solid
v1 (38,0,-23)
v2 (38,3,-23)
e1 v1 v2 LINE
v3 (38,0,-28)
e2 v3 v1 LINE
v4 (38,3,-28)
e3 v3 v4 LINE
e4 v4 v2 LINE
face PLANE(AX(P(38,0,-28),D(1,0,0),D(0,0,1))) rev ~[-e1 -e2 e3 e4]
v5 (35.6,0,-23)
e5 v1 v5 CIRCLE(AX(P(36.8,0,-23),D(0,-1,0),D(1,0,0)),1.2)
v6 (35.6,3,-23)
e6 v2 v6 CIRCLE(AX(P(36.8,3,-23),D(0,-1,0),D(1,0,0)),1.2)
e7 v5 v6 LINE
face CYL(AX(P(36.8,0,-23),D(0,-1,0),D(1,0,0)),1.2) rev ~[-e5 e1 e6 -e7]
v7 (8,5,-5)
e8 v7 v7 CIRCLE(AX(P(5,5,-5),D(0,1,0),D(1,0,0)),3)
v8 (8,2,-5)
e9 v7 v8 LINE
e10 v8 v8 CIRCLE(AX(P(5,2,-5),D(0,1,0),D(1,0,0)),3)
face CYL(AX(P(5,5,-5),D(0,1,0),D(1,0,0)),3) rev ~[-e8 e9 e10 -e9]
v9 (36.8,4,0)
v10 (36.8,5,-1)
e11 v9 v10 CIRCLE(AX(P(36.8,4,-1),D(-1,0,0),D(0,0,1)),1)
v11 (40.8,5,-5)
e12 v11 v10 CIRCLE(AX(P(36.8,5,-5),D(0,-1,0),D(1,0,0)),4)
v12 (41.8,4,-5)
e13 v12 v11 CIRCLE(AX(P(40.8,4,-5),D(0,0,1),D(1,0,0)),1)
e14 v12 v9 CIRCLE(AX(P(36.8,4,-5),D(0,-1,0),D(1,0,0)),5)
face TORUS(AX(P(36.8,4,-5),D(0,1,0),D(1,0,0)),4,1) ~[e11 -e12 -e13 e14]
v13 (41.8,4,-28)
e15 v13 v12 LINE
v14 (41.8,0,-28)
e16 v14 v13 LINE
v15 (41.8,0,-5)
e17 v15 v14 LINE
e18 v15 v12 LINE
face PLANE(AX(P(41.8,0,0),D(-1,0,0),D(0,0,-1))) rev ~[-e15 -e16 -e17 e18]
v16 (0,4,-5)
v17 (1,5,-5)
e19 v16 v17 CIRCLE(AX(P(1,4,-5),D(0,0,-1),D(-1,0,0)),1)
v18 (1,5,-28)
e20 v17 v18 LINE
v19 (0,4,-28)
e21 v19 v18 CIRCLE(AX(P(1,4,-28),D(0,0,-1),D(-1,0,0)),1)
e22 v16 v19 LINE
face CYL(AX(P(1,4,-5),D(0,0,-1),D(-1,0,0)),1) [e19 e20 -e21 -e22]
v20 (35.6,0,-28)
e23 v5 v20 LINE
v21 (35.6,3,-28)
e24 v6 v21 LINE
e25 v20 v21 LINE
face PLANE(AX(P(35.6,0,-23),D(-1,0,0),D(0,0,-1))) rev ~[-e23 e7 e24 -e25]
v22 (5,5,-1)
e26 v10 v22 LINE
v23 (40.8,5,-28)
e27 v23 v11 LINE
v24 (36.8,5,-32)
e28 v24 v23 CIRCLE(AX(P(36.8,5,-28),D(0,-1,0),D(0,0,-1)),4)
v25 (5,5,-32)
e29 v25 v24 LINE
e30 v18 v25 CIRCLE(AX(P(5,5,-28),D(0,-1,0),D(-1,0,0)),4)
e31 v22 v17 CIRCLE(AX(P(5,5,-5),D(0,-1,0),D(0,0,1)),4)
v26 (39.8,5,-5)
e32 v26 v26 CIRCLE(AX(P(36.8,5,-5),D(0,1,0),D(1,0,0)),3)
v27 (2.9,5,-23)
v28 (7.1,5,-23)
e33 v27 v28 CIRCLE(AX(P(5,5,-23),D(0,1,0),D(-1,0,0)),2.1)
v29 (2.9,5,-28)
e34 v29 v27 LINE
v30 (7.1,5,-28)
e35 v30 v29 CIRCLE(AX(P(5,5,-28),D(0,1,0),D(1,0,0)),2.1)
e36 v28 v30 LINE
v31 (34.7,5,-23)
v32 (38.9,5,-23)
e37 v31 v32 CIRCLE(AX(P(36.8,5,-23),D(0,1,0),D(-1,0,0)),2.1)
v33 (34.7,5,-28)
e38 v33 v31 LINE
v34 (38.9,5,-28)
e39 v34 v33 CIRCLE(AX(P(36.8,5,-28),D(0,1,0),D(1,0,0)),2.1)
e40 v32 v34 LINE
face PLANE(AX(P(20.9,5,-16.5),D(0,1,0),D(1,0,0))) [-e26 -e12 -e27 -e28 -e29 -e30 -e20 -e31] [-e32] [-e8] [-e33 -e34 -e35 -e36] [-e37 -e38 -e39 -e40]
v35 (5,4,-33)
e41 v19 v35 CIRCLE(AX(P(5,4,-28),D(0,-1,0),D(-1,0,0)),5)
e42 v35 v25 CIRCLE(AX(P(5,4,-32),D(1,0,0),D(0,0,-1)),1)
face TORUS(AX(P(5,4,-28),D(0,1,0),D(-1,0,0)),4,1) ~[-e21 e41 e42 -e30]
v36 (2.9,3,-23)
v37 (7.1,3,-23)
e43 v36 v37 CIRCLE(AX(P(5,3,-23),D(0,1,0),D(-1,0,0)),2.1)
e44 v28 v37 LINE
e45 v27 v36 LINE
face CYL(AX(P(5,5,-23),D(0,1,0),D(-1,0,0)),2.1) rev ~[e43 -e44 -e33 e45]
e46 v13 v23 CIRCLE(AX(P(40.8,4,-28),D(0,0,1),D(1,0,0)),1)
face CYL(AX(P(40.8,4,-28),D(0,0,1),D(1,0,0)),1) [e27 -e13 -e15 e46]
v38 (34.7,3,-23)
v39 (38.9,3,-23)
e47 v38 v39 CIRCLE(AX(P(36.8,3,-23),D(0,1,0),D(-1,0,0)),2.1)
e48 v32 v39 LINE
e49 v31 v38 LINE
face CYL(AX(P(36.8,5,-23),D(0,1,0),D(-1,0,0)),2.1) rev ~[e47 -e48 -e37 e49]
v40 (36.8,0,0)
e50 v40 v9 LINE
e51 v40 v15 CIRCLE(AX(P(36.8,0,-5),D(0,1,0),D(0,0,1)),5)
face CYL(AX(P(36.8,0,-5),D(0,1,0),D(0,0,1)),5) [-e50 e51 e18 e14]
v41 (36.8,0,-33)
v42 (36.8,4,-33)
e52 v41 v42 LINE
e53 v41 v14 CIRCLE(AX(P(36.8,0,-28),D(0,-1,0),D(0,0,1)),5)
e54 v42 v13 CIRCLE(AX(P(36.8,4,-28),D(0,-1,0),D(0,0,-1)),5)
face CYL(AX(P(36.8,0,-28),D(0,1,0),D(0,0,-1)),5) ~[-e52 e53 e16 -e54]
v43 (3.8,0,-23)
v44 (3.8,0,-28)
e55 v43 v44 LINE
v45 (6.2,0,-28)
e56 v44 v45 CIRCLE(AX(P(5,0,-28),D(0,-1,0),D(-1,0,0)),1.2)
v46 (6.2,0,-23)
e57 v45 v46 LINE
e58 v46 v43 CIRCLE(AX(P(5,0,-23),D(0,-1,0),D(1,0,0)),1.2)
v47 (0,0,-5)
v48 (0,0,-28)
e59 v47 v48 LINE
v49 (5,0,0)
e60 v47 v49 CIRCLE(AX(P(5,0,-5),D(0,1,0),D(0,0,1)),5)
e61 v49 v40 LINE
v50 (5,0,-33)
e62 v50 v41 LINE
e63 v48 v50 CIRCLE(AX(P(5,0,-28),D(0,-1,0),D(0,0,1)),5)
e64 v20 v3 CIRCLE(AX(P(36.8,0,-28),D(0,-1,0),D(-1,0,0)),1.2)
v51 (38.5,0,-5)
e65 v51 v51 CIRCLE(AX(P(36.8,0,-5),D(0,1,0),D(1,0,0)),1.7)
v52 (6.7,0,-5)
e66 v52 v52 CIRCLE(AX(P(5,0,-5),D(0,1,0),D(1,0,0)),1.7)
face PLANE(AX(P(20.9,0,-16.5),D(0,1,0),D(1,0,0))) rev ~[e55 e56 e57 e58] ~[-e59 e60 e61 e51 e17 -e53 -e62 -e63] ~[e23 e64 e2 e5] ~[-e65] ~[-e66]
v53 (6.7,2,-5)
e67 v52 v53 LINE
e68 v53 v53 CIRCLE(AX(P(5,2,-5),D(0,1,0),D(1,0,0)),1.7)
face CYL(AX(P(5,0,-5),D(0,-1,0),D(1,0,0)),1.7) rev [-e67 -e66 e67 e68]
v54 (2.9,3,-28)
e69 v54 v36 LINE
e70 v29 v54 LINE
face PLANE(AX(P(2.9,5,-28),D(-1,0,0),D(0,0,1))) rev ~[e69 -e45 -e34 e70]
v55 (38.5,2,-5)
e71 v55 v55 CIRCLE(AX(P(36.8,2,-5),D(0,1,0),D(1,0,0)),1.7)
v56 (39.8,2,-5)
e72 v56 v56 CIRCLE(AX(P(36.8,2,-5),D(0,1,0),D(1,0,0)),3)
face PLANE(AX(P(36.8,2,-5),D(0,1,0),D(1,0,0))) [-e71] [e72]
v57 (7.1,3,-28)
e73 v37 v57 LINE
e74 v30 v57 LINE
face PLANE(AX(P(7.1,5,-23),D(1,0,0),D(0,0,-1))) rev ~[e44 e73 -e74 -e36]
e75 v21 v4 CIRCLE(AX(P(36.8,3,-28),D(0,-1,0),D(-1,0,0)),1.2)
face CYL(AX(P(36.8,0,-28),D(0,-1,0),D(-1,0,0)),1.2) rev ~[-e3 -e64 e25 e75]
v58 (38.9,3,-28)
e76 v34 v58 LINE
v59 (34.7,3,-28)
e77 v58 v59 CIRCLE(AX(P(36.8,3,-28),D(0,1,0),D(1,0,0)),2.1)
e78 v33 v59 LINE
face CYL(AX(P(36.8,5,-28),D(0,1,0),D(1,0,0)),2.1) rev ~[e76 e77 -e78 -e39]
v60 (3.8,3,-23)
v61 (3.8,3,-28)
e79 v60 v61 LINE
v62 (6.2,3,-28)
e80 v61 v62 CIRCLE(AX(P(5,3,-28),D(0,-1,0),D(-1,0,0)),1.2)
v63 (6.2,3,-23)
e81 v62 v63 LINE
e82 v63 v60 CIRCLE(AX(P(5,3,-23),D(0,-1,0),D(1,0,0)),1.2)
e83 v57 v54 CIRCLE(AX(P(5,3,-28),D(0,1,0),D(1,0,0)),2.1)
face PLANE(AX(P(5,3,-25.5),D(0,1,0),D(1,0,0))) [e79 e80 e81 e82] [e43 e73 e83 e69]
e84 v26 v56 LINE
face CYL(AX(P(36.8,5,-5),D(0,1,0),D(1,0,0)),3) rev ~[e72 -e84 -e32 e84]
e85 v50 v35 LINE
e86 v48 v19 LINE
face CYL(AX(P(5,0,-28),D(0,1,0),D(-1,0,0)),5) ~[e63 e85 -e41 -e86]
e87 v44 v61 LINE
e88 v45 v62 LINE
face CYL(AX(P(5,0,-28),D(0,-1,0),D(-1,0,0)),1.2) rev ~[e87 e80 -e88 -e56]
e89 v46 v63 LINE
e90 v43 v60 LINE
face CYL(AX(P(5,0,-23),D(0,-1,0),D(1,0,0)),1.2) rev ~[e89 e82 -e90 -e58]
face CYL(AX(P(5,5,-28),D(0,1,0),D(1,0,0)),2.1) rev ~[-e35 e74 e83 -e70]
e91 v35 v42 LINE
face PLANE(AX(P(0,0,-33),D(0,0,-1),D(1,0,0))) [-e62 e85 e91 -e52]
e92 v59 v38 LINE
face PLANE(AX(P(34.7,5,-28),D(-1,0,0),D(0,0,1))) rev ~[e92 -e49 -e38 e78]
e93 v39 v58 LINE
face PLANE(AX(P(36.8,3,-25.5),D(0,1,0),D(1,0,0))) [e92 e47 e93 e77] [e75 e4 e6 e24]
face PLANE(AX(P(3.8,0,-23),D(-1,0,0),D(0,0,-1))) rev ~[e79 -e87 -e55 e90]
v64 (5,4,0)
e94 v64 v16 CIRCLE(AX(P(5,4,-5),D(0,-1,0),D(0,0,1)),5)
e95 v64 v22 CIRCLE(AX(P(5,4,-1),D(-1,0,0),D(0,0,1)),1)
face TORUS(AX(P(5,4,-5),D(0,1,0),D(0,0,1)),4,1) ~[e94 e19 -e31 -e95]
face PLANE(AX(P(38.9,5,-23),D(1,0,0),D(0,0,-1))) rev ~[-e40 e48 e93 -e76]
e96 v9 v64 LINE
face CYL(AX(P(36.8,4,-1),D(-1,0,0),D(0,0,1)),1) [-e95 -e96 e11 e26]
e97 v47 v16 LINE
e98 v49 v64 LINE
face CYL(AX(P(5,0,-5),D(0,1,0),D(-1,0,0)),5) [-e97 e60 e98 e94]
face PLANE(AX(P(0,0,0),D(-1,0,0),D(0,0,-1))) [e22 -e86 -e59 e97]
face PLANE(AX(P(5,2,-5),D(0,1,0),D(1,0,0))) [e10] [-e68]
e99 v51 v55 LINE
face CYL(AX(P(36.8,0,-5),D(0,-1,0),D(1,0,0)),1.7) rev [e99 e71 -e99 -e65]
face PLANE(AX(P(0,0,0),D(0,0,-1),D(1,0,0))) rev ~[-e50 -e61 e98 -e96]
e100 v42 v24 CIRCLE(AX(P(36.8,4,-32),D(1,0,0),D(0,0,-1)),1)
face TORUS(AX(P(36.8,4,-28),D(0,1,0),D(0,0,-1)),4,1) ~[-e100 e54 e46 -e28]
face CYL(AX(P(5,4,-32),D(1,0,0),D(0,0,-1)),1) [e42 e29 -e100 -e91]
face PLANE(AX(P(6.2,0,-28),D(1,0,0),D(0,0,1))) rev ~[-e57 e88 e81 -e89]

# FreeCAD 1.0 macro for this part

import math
import FreeCAD as App
import Part
import Sketcher
Q = App.Units.Quantity


def edges_at(feature, points):
    """Names of the edges that pass closest to the given points."""
    edges = feature.Shape.Edges
    near = lambda p: min(range(len(edges)), key=lambda i: edges[i].distToShape(Part.Vertex(*p))[0])
    return sorted({f"Edge{near(p) + 1}" for p in points})


def add_polygon(sketch, points):
    """Adds a closed chain of lines whose ends are joined by coincident constraints."""
    first, n = sketch.GeometryCount, len(points)
    for a, b in zip(points, points[1:] + points[:1]):
        sketch.addGeometry(Part.LineSegment(App.Vector(*a, 0), App.Vector(*b, 0)), False)
    for i in range(n):
        sketch.addConstraint(Sketcher.Constraint("Coincident", first + i, 2, first + (i + 1) % n, 1))

doc = App.newDocument("Part")
body = doc.addObject("PartDesign::Body", "Body")

# Sketch on XZ plane
sketch1 = body.newObject("Sketcher::SketchObject", "Sketch")
sketch1.AttachmentSupport = (doc.getObject("XZ_Plane"), [""])
sketch1.MapMode = "FlatFace"
add_polygon(sketch1, [(0, -33), (0, 0), (41.8, 0), (41.8, -33)])  # lines 0-3
sketch1.addGeometry(Part.Circle(App.Vector(5, -5, 0), App.Vector(0, 0, 1), 1.7), False)  # 4
sketch1.addGeometry(Part.Circle(App.Vector(36.8, -5, 0), App.Vector(0, 0, 1), 1.7), False)  # 5
sketch1.addGeometry(Part.ArcOfCircle(Part.Circle(App.Vector(5, -23, 0), App.Vector(0, 0, 1), 1.2), math.radians(0), math.radians(180)), False)  # 6
sketch1.addGeometry(Part.LineSegment(App.Vector(3.8, -23, 0), App.Vector(3.8, -28, 0)), False)  # 7
sketch1.addGeometry(Part.ArcOfCircle(Part.Circle(App.Vector(5, -28, 0), App.Vector(0, 0, 1), 1.2), math.radians(180), math.radians(360)), False)  # 8
sketch1.addGeometry(Part.LineSegment(App.Vector(6.2, -28, 0), App.Vector(6.2, -23, 0)), False)  # 9
sketch1.addGeometry(Part.ArcOfCircle(Part.Circle(App.Vector(36.8, -23, 0), App.Vector(0, 0, 1), 1.2), math.radians(0), math.radians(180)), False)  # 10
sketch1.addGeometry(Part.LineSegment(App.Vector(35.6, -23, 0), App.Vector(35.6, -28, 0)), False)  # 11
sketch1.addGeometry(Part.ArcOfCircle(Part.Circle(App.Vector(36.8, -28, 0), App.Vector(0, 0, 1), 1.2), math.radians(180), math.radians(360)), False)  # 12
sketch1.addGeometry(Part.LineSegment(App.Vector(38, -28, 0), App.Vector(38, -23, 0)), False)  # 13
sketch1.addConstraint([
    Sketcher.Constraint("Tangent", 6, 2, 7, 1),
    Sketcher.Constraint("Tangent", 7, 2, 8, 1),
    Sketcher.Constraint("Tangent", 8, 2, 9, 1),
    Sketcher.Constraint("Tangent", 9, 2, 6, 1),
    Sketcher.Constraint("Tangent", 10, 2, 11, 1),
    Sketcher.Constraint("Tangent", 11, 2, 12, 1),
    Sketcher.Constraint("Tangent", 12, 2, 13, 1),
    Sketcher.Constraint("Tangent", 13, 2, 10, 1),
    Sketcher.Constraint("Vertical", 0),
    Sketcher.Constraint("Horizontal", 1),
    Sketcher.Constraint("Vertical", 2),
    Sketcher.Constraint("Horizontal", 3),
    Sketcher.Constraint("Vertical", 7),
    Sketcher.Constraint("Vertical", 9),
    Sketcher.Constraint("Vertical", 11),
    Sketcher.Constraint("Vertical", 13),
    Sketcher.Constraint("Coincident", 0, 2, -1, 1),
    Sketcher.Constraint("Equal", 4, 5),
    Sketcher.Constraint("Equal", 8, 10),
    Sketcher.Constraint("Horizontal", 4, 3, 5, 3),
    Sketcher.Constraint("Horizontal", 6, 3, 10, 3),
    Sketcher.Constraint("Horizontal", 8, 3, 12, 3),
    Sketcher.Constraint("Vertical", 4, 3, 6, 3),
    Sketcher.Constraint("Vertical", 5, 3, 10, 3),
    Sketcher.Constraint("Diameter", 4, Q("3.4 mm")),
    Sketcher.Constraint("Radius", 6, Q("1.2 mm")),
    Sketcher.Constraint("DistanceY", 0, 1, 0, 2, Q("33 mm")),
    Sketcher.Constraint("DistanceY", 7, 2, 7, 1, Q("5 mm")),
    Sketcher.Constraint("DistanceX", 1, 1, 1, 2, Q("41.8 mm")),
    Sketcher.Constraint("DistanceX", -1, 1, 4, 3, Q("5 mm")),
    Sketcher.Constraint("DistanceY", 4, 3, -1, 1, Q("5 mm")),
    Sketcher.Constraint("DistanceY", 6, 3, -1, 1, Q("23 mm")),
    Sketcher.Constraint("DistanceX", -1, 1, 12, 2, Q("38 mm")),
])
pad1 = body.newObject("PartDesign::Pad", "Pad")
pad1.Profile = sketch1
pad1.Length = 5
pad1.Reversed = True
doc.recompute()

fillet = body.newObject("PartDesign::Fillet", "Fillet")
fillet.Base = (pad1, edges_at(pad1, [
    (0, 2.5, -33),
    (41.8, 2.5, -33),
    (41.8, 2.5, 0),
    (0, 2.5, 0),
]))
fillet.Radius = 5
doc.recompute()

fillet2 = body.newObject("PartDesign::Fillet", "Fillet001")
fillet2.Base = (fillet, edges_at(fillet, [
    (0, 5, -16.5),
    (20.9, 5, -33),
    (20.9, 5, 0),
    (41.8, 5, -16.5),
    (1.464, 5, -1.464),
    (40.336, 5, -1.464),
    (40.336, 5, -31.536),
    (1.464, 5, -31.536),
]))
fillet2.Radius = 1

# Sketch on XZ plane
sketch2 = body.newObject("Sketcher::SketchObject", "Sketch001")
sketch2.AttachmentSupport = (doc.getObject("XZ_Plane"), [""])
sketch2.MapMode = "FlatFace"
sketch2.AttachmentOffset = App.Placement(App.Vector(0, 0, -5), App.Rotation())
sketch2.addGeometry([
    Part.Circle(App.Vector(5, -5, 0), App.Vector(0, 0, 1), 3),
    Part.Circle(App.Vector(5, -5, 0), App.Vector(0, 0, 1), 1.7),
    Part.Circle(App.Vector(36.8, -5, 0), App.Vector(0, 0, 1), 3),
    Part.Circle(App.Vector(36.8, -5, 0), App.Vector(0, 0, 1), 1.7),
], False)
sketch2.addConstraint([
    Sketcher.Constraint("Coincident", 1, 3, 0, 3),
    Sketcher.Constraint("Coincident", 3, 3, 2, 3),
    Sketcher.Constraint("Equal", 0, 2),
    Sketcher.Constraint("Equal", 1, 3),
    Sketcher.Constraint("Horizontal", 1, 3, 2, 3),
    Sketcher.Constraint("Diameter", 0, Q("6 mm")),
    Sketcher.Constraint("Diameter", 1, Q("3.4 mm")),
    Sketcher.Constraint("DistanceX", -1, 1, 0, 3, Q("5 mm")),
    Sketcher.Constraint("DistanceY", 0, 3, -1, 1, Q("5 mm")),
    Sketcher.Constraint("DistanceX", -1, 1, 2, 3, Q("36.8 mm")),
])
pocket1 = body.newObject("PartDesign::Pocket", "Pocket")
pocket1.Profile = sketch2
pocket1.Length = 3
pocket1.Reversed = True

# Sketch on XZ plane
sketch3 = body.newObject("Sketcher::SketchObject", "Sketch002")
sketch3.AttachmentSupport = (doc.getObject("XZ_Plane"), [""])
sketch3.MapMode = "FlatFace"
sketch3.AttachmentOffset = App.Placement(App.Vector(0, 0, -5), App.Rotation())
sketch3.addGeometry([
    Part.LineSegment(App.Vector(2.9, -28, 0), App.Vector(2.9, -23, 0)),  # 0
    Part.ArcOfCircle(Part.Circle(App.Vector(5, -23, 0), App.Vector(0, 0, 1), 2.1), math.radians(0), math.radians(180)),  # 1
    Part.LineSegment(App.Vector(7.1, -23, 0), App.Vector(7.1, -28, 0)),  # 2
    Part.ArcOfCircle(Part.Circle(App.Vector(5, -28, 0), App.Vector(0, 0, 1), 2.1), math.radians(180), math.radians(360)),  # 3
    Part.ArcOfCircle(Part.Circle(App.Vector(5, -28, 0), App.Vector(0, 0, 1), 1.2), math.radians(180), math.radians(360)),  # 4
    Part.LineSegment(App.Vector(6.2, -28, 0), App.Vector(6.2, -23, 0)),  # 5
    Part.ArcOfCircle(Part.Circle(App.Vector(5, -23, 0), App.Vector(0, 0, 1), 1.2), math.radians(0), math.radians(180)),  # 6
    Part.LineSegment(App.Vector(3.8, -23, 0), App.Vector(3.8, -28, 0)),  # 7
    Part.LineSegment(App.Vector(34.7, -28, 0), App.Vector(34.7, -23, 0)),  # 8
    Part.ArcOfCircle(Part.Circle(App.Vector(36.8, -23, 0), App.Vector(0, 0, 1), 2.1), math.radians(0), math.radians(180)),  # 9
    Part.LineSegment(App.Vector(38.9, -23, 0), App.Vector(38.9, -28, 0)),  # 10
    Part.ArcOfCircle(Part.Circle(App.Vector(36.8, -28, 0), App.Vector(0, 0, 1), 2.1), math.radians(180), math.radians(360)),  # 11
    Part.ArcOfCircle(Part.Circle(App.Vector(36.8, -28, 0), App.Vector(0, 0, 1), 1.2), math.radians(180), math.radians(360)),  # 12
    Part.LineSegment(App.Vector(38, -28, 0), App.Vector(38, -23, 0)),  # 13
    Part.ArcOfCircle(Part.Circle(App.Vector(36.8, -23, 0), App.Vector(0, 0, 1), 1.2), math.radians(0), math.radians(180)),  # 14
    Part.LineSegment(App.Vector(35.6, -23, 0), App.Vector(35.6, -28, 0)),  # 15
], False)
sketch3.addConstraint([
    Sketcher.Constraint("Tangent", 0, 2, 1, 2),
    Sketcher.Constraint("Tangent", 1, 1, 2, 1),
    Sketcher.Constraint("Tangent", 2, 2, 3, 2),
    Sketcher.Constraint("Tangent", 3, 1, 0, 1),
    Sketcher.Constraint("Tangent", 4, 2, 5, 1),
    Sketcher.Constraint("Tangent", 5, 2, 6, 1),
    Sketcher.Constraint("Tangent", 6, 2, 7, 1),
    Sketcher.Constraint("Tangent", 7, 2, 4, 1),
    Sketcher.Constraint("Tangent", 8, 2, 9, 2),
    Sketcher.Constraint("Tangent", 9, 1, 10, 1),
    Sketcher.Constraint("Tangent", 10, 2, 11, 2),
    Sketcher.Constraint("Tangent", 11, 1, 8, 1),
    Sketcher.Constraint("Tangent", 12, 2, 13, 1),
    Sketcher.Constraint("Tangent", 13, 2, 14, 1),
    Sketcher.Constraint("Tangent", 14, 2, 15, 1),
    Sketcher.Constraint("Tangent", 15, 2, 12, 1),
    Sketcher.Constraint("Vertical", 0),
    Sketcher.Constraint("Vertical", 2),
    Sketcher.Constraint("Vertical", 5),
    Sketcher.Constraint("Vertical", 7),
    Sketcher.Constraint("Vertical", 8),
    Sketcher.Constraint("Vertical", 10),
    Sketcher.Constraint("Vertical", 13),
    Sketcher.Constraint("Vertical", 15),
    Sketcher.Constraint("Coincident", 4, 3, 3, 3),
    Sketcher.Constraint("Coincident", 12, 3, 11, 3),
    Sketcher.Constraint("Equal", 3, 9),
    Sketcher.Constraint("Equal", 6, 12),
    Sketcher.Constraint("Horizontal", 6, 3, 9, 3),
    Sketcher.Constraint("Horizontal", 4, 3, 11, 3),
    Sketcher.Constraint("Horizontal", 6, 3, 14, 3),
    Sketcher.Constraint("Horizontal", 14, 3, 0, 2),
    Sketcher.Constraint("Radius", 1, Q("2.1 mm")),
    Sketcher.Constraint("Radius", 4, Q("1.2 mm")),
    Sketcher.Constraint("DistanceY", 0, 1, 0, 2, Q("5 mm")),
    Sketcher.Constraint("DistanceX", -1, 1, 1, 3, Q("5 mm")),
    Sketcher.Constraint("DistanceY", 1, 3, -1, 1, Q("23 mm")),
    Sketcher.Constraint("DistanceX", -1, 1, 12, 2, Q("38 mm")),
])
pocket2 = body.newObject("PartDesign::Pocket", "Pocket001")
pocket2.Profile = sketch3
pocket2.Length = 2
pocket2.Reversed = True

doc.recompute()
